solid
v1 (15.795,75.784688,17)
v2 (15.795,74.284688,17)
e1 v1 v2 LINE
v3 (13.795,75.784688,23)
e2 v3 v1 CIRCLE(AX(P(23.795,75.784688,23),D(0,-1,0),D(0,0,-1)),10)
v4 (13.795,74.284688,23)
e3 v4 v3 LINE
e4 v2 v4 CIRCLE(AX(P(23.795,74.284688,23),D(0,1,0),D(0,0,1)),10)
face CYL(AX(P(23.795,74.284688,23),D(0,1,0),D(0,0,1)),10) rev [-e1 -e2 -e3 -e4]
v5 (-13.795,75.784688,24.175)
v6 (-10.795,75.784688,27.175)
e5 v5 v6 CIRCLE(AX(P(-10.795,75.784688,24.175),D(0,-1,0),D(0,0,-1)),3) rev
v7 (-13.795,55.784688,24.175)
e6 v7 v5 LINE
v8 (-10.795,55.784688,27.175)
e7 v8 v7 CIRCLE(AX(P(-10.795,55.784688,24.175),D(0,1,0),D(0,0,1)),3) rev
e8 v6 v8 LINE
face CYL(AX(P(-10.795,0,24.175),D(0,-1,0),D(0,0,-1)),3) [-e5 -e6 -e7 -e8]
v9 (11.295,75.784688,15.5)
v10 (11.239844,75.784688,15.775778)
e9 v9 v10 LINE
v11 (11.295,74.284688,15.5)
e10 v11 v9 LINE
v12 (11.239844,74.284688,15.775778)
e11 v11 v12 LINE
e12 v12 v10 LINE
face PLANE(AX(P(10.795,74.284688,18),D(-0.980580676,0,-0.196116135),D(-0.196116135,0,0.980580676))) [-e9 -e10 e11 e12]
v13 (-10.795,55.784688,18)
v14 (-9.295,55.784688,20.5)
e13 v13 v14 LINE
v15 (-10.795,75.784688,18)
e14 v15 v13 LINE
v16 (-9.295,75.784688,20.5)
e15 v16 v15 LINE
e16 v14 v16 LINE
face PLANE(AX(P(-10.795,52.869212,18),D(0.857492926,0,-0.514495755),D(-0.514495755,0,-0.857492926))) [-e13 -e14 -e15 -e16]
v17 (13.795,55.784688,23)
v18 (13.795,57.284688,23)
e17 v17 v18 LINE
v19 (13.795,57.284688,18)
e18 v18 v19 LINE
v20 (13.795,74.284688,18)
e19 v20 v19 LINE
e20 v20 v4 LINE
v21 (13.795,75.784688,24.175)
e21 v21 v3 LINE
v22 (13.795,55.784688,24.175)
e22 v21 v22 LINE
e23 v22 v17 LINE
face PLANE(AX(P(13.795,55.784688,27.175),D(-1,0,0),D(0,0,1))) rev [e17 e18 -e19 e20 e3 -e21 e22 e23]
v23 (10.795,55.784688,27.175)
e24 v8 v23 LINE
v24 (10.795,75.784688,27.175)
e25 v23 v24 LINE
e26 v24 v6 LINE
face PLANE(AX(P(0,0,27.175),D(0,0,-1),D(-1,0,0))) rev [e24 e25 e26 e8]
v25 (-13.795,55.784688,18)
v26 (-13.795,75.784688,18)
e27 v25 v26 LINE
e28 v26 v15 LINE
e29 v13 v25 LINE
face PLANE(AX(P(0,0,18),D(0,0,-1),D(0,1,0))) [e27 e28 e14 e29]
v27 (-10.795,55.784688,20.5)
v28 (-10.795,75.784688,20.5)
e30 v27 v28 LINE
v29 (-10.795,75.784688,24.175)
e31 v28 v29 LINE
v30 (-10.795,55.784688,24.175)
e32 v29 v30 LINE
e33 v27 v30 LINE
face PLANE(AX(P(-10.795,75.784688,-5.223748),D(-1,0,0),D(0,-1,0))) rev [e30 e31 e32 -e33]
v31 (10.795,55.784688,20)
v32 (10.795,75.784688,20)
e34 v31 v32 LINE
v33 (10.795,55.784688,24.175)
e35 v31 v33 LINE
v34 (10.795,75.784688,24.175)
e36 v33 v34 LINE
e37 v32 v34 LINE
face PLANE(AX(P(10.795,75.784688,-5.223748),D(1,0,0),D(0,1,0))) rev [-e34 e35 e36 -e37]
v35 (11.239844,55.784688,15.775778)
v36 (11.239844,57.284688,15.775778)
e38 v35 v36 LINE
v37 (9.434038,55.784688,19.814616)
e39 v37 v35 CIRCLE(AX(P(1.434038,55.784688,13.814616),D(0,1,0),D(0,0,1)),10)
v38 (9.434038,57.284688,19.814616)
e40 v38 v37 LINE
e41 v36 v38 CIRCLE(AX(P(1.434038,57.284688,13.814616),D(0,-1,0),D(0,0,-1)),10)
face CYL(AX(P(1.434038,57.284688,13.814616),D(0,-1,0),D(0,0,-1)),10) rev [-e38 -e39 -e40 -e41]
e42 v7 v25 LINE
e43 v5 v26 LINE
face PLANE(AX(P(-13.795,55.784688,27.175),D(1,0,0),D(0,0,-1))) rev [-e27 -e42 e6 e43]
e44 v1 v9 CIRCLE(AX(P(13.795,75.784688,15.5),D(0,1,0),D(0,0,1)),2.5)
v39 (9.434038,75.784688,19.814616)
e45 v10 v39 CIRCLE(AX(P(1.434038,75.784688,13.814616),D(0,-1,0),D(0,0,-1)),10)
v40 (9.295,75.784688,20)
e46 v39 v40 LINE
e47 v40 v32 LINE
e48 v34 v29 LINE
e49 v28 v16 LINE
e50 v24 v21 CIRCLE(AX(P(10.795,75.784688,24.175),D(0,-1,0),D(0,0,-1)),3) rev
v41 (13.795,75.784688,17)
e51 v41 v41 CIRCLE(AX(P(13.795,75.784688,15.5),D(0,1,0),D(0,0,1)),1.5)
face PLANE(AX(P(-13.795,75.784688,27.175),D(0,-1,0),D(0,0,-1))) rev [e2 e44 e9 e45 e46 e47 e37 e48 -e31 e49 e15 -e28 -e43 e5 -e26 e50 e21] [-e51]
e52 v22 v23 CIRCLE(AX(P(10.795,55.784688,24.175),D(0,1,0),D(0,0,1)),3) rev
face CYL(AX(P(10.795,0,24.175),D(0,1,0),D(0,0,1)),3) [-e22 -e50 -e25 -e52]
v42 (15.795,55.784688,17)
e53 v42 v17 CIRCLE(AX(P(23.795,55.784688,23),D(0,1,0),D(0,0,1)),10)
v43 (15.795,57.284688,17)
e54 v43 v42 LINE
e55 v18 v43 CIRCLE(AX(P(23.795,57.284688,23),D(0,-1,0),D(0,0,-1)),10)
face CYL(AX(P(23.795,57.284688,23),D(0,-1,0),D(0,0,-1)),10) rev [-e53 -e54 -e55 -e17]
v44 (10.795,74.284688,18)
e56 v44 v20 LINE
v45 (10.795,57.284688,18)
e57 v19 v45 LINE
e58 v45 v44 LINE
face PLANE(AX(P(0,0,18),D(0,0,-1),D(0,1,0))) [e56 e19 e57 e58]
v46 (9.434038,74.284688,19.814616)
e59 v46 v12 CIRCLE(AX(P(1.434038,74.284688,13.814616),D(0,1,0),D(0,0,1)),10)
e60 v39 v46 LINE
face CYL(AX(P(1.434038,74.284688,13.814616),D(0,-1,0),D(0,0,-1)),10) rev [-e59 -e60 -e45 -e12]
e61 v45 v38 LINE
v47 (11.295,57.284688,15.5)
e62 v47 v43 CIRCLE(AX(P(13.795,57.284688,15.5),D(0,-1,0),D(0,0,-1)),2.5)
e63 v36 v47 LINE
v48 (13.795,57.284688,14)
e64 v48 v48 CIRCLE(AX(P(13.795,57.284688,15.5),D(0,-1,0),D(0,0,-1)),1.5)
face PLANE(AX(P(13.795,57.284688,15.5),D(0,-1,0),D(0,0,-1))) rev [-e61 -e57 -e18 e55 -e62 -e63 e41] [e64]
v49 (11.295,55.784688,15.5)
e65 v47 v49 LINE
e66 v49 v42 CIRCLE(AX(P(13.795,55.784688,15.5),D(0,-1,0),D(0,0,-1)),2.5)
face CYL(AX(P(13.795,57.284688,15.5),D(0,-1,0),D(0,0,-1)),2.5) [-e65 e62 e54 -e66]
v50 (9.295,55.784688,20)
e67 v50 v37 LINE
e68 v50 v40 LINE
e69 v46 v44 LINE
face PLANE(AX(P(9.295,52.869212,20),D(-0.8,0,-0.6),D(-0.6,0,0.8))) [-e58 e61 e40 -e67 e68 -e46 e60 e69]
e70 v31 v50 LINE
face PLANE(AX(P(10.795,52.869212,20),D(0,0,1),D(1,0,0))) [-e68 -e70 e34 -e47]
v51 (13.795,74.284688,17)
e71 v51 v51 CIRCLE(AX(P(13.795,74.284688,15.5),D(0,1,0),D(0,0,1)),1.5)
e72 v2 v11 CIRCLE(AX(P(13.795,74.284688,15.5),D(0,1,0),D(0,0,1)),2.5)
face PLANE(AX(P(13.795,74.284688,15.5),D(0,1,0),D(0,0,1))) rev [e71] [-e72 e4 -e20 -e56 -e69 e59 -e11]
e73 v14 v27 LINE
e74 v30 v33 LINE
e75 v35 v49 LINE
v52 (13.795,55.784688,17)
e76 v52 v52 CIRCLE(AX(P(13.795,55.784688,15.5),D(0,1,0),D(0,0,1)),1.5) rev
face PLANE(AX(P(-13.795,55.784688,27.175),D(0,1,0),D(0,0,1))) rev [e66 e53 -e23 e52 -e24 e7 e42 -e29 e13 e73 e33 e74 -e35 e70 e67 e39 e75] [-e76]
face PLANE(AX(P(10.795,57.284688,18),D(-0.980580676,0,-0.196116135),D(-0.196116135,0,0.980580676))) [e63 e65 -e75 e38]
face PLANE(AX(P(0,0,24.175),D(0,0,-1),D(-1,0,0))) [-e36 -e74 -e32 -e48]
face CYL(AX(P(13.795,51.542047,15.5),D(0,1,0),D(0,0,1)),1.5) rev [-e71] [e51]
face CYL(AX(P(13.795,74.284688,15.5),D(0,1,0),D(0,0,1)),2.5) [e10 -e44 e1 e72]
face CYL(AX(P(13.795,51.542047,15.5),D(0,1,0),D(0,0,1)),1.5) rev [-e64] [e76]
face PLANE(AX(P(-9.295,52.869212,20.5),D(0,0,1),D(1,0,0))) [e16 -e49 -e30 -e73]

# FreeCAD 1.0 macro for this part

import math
import FreeCAD as App
import Part
import Sketcher

V = App.Vector


def edges_at(feature, points):
    """Names of the edges that pass closest to the given points."""
    edges = feature.Shape.Edges
    near = lambda p: min(range(len(edges)), key=lambda i: edges[i].distToShape(Part.Vertex(*p))[0])
    return sorted({f"Edge{near(p) + 1}" for p in points})

doc = App.newDocument("Part")
body = doc.addObject("PartDesign::Body", "Body")

# Sketch on XY plane
sketch1 = body.newObject("Sketcher::SketchObject", "Sketch")
sketch1.AttachmentSupport = (doc.getObject("XY_Plane"), [""])
sketch1.MapMode = "FlatFace"
sketch1.AttachmentOffset = App.Placement(V(0, 0, 24.175), App.Rotation())
sketch1.addGeometry(Part.LineSegment(V(-14, 76, 0), V(-14, 56, 0)), False)
sketch1.addGeometry(Part.LineSegment(V(-14, 56, 0), V(14, 56, 0)), False)
sketch1.addGeometry(Part.LineSegment(V(14, 56, 0), V(14, 76, 0)), False)
sketch1.addGeometry(Part.LineSegment(V(14, 76, 0), V(-14, 76, 0)), False)
sketch1.addConstraint(Sketcher.Constraint("Coincident", 0, 2, 1, 1))
sketch1.addConstraint(Sketcher.Constraint("Coincident", 1, 2, 2, 1))
sketch1.addConstraint(Sketcher.Constraint("Coincident", 2, 2, 3, 1))
sketch1.addConstraint(Sketcher.Constraint("Coincident", 3, 2, 0, 1))
sketch1.addConstraint(Sketcher.Constraint("Vertical", 0))
sketch1.addConstraint(Sketcher.Constraint("Horizontal", 1))
sketch1.addConstraint(Sketcher.Constraint("Vertical", 2))
sketch1.addConstraint(Sketcher.Constraint("Horizontal", 3))
sketch1.addConstraint(Sketcher.Constraint("DistanceY", 0, 2, 0, 1, 20.0))
sketch1.addConstraint(Sketcher.Constraint("DistanceX", 1, 1, 1, 2, 27.59))
sketch1.addConstraint(Sketcher.Constraint("DistanceX", 0, 2, -1, 1, 13.795))
sketch1.addConstraint(Sketcher.Constraint("DistanceY", -1, 1, 0, 2, 55.784688))
pad1 = body.newObject("PartDesign::Pad", "Pad")
pad1.Profile = sketch1
pad1.Length = 3

# Sketch on XY plane
sketch2 = body.newObject("Sketcher::SketchObject", "Sketch001")
sketch2.AttachmentSupport = (doc.getObject("XY_Plane"), [""])
sketch2.MapMode = "FlatFace"
sketch2.AttachmentOffset = App.Placement(V(0, 0, 24.175), App.Rotation())
sketch2.addGeometry(Part.LineSegment(V(13.8, 75.8, 0), V(13.8, 55.8, 0)), False)
sketch2.addGeometry(Part.LineSegment(V(13.8, 55.8, 0), V(10.8, 55.8, 0)), False)
sketch2.addGeometry(Part.LineSegment(V(10.8, 55.8, 0), V(10.8, 75.8, 0)), False)
sketch2.addGeometry(Part.LineSegment(V(10.8, 75.8, 0), V(13.8, 75.8, 0)), False)
sketch2.addGeometry(Part.LineSegment(V(-10.8, 75.8, 0), V(-10.8, 55.8, 0)), False)
sketch2.addGeometry(Part.LineSegment(V(-10.8, 55.8, 0), V(-13.8, 55.8, 0)), False)
sketch2.addGeometry(Part.LineSegment(V(-13.8, 55.8, 0), V(-13.8, 75.8, 0)), False)
sketch2.addGeometry(Part.LineSegment(V(-13.8, 75.8, 0), V(-10.8, 75.8, 0)), False)
sketch2.addConstraint(Sketcher.Constraint("Coincident", 0, 2, 1, 1))
sketch2.addConstraint(Sketcher.Constraint("Coincident", 1, 2, 2, 1))
sketch2.addConstraint(Sketcher.Constraint("Coincident", 2, 2, 3, 1))
sketch2.addConstraint(Sketcher.Constraint("Coincident", 3, 2, 0, 1))
sketch2.addConstraint(Sketcher.Constraint("Coincident", 4, 2, 5, 1))
sketch2.addConstraint(Sketcher.Constraint("Coincident", 5, 2, 6, 1))
sketch2.addConstraint(Sketcher.Constraint("Coincident", 6, 2, 7, 1))
sketch2.addConstraint(Sketcher.Constraint("Coincident", 7, 2, 4, 1))
sketch2.addConstraint(Sketcher.Constraint("Vertical", 0))
sketch2.addConstraint(Sketcher.Constraint("Horizontal", 1))
sketch2.addConstraint(Sketcher.Constraint("Vertical", 2))
sketch2.addConstraint(Sketcher.Constraint("Horizontal", 3))
sketch2.addConstraint(Sketcher.Constraint("Vertical", 4))
sketch2.addConstraint(Sketcher.Constraint("Horizontal", 5))
sketch2.addConstraint(Sketcher.Constraint("Vertical", 6))
sketch2.addConstraint(Sketcher.Constraint("Horizontal", 7))
sketch2.addConstraint(Sketcher.Constraint("Symmetric", 1, 2, 4, 2, -2))
sketch2.addConstraint(Sketcher.Constraint("Symmetric", 3, 2, 6, 2, -2))
sketch2.addConstraint(Sketcher.Constraint("DistanceX", 1, 2, 1, 1, 3.0))
sketch2.addConstraint(Sketcher.Constraint("DistanceY", 0, 2, 0, 1, 20.0))
sketch2.addConstraint(Sketcher.Constraint("DistanceX", 4, 2, 1, 2, 21.59))
sketch2.addConstraint(Sketcher.Constraint("DistanceY", -1, 1, 0, 2, 55.784688))
pad2 = body.newObject("PartDesign::Pad", "Pad001")
pad2.Profile = sketch2
pad2.Length = 6.175
pad2.Reversed = True

# Sketch on XZ plane
sketch3 = body.newObject("Sketcher::SketchObject", "Sketch002")
sketch3.AttachmentSupport = (doc.getObject("XZ_Plane"), [""])
sketch3.MapMode = "FlatFace"
sketch3.AttachmentOffset = App.Placement(V(0, 0, -75.784688), App.Rotation())
sketch3.addGeometry(Part.LineSegment(V(-10.8, 18, 0), V(-10.8, 20.5, 0)), False)
sketch3.addGeometry(Part.LineSegment(V(-10.8, 20.5, 0), V(-9.3, 20.5, 0)), False)
sketch3.addGeometry(Part.LineSegment(V(-9.3, 20.5, 0), V(-10.8, 18, 0)), False)
sketch3.addGeometry(Part.LineSegment(V(10.8, 20, 0), V(10.8, 18, 0)), False)
sketch3.addGeometry(Part.LineSegment(V(10.8, 18, 0), V(9.3, 20, 0)), False)
sketch3.addGeometry(Part.LineSegment(V(9.3, 20, 0), V(10.8, 20, 0)), False)
sketch3.addConstraint(Sketcher.Constraint("Coincident", 0, 2, 1, 1))
sketch3.addConstraint(Sketcher.Constraint("Coincident", 1, 2, 2, 1))
sketch3.addConstraint(Sketcher.Constraint("Coincident", 2, 2, 0, 1))
sketch3.addConstraint(Sketcher.Constraint("Coincident", 3, 2, 4, 1))
sketch3.addConstraint(Sketcher.Constraint("Coincident", 4, 2, 5, 1))
sketch3.addConstraint(Sketcher.Constraint("Coincident", 5, 2, 3, 1))
sketch3.addConstraint(Sketcher.Constraint("Vertical", 0))
sketch3.addConstraint(Sketcher.Constraint("Horizontal", 1))
sketch3.addConstraint(Sketcher.Constraint("Vertical", 3))
sketch3.addConstraint(Sketcher.Constraint("Horizontal", 5))
sketch3.addConstraint(Sketcher.Constraint("Symmetric", 2, 2, 3, 2, -2))
sketch3.addConstraint(Sketcher.Constraint("Equal", 1, 5))
sketch3.addConstraint(Sketcher.Constraint("DistanceY", 3, 2, 3, 1, 2.0))
sketch3.addConstraint(Sketcher.Constraint("DistanceX", 1, 1, 1, 2, 1.5))
sketch3.addConstraint(Sketcher.Constraint("DistanceY", 0, 1, 0, 2, 2.5))
sketch3.addConstraint(Sketcher.Constraint("DistanceY", -1, 1, 2, 2, 18.0))
sketch3.addConstraint(Sketcher.Constraint("DistanceX", 1, 2, 3, 2, 20.09))
pad3 = body.newObject("PartDesign::Pad", "Pad002")
pad3.Profile = sketch3
pad3.Length = 20

# Sketch on XZ plane
sketch4 = body.newObject("Sketcher::SketchObject", "Sketch003")
sketch4.AttachmentSupport = (doc.getObject("XZ_Plane"), [""])
sketch4.MapMode = "FlatFace"
sketch4.AttachmentOffset = App.Placement(V(0, 0, -55.784688), App.Rotation())
sketch4.addGeometry(Part.LineSegment(V(10.8, 18, 0), V(11.3, 15.5, 0)), False)
sketch4.addGeometry(Part.ArcOfCircle(Part.Circle(V(13.8, 15.5, 0), V(0, 0, 1), 2.5), math.radians(180), math.radians(450)), False)
sketch4.addGeometry(Part.LineSegment(V(13.8, 18, 0), V(10.8, 18, 0)), False)
sketch4.addConstraint(Sketcher.Constraint("Coincident", 0, 2, 1, 1))
sketch4.addConstraint(Sketcher.Constraint("Tangent", 1, 2, 2, 1))
sketch4.addConstraint(Sketcher.Constraint("Coincident", 2, 2, 0, 1))
sketch4.addConstraint(Sketcher.Constraint("Horizontal", 2))
sketch4.addConstraint(Sketcher.Constraint("Horizontal", 1, 3, 0, 2))
sketch4.addConstraint(Sketcher.Constraint("Radius", 1, 2.5))
sketch4.addConstraint(Sketcher.Constraint("DistanceX", 2, 2, 2, 1, 3.0))
sketch4.addConstraint(Sketcher.Constraint("DistanceY", -1, 1, 1, 2, 18.0))
sketch4.addConstraint(Sketcher.Constraint("DistanceX", -1, 1, 1, 3, 13.795))
pad4 = body.newObject("PartDesign::Pad", "Pad003")
pad4.Profile = sketch4
pad4.Length = 1.5
pad4.Reversed = True

# Sketch on XZ plane
sketch5 = body.newObject("Sketcher::SketchObject", "Sketch004")
sketch5.AttachmentSupport = (doc.getObject("XZ_Plane"), [""])
sketch5.MapMode = "FlatFace"
sketch5.AttachmentOffset = App.Placement(V(0, 0, -74.284688), App.Rotation())
sketch5.addGeometry(Part.LineSegment(V(11.3, 15.5, 0), V(10.8, 18, 0)), False)
sketch5.addGeometry(Part.LineSegment(V(10.8, 18, 0), V(13.8, 18, 0)), False)
sketch5.addGeometry(Part.ArcOfCircle(Part.Circle(V(13.8, 15.5, 0), V(0, 0, 1), 2.5), math.radians(180), math.radians(450)), False)
sketch5.addConstraint(Sketcher.Constraint("Coincident", 0, 2, 1, 1))
sketch5.addConstraint(Sketcher.Constraint("Tangent", 1, 2, 2, 2))
sketch5.addConstraint(Sketcher.Constraint("Coincident", 2, 1, 0, 1))
sketch5.addConstraint(Sketcher.Constraint("Horizontal", 1))
sketch5.addConstraint(Sketcher.Constraint("Radius", 2, 2.5))
sketch5.addConstraint(Sketcher.Constraint("DistanceX", 1, 1, 1, 2, 3.0))
sketch5.addConstraint(Sketcher.Constraint("DistanceY", -1, 1, 0, 2, 18.0))
sketch5.addConstraint(Sketcher.Constraint("DistanceY", -1, 1, 2, 1, 15.5))
sketch5.addConstraint(Sketcher.Constraint("DistanceX", -1, 1, 2, 3, 13.795))
pad5 = body.newObject("PartDesign::Pad", "Pad004")
pad5.Profile = sketch5
pad5.Length = 1.5
pad5.Reversed = True

# Sketch on XZ plane
sketch6 = body.newObject("Sketcher::SketchObject", "Sketch005")
sketch6.AttachmentSupport = (doc.getObject("XZ_Plane"), [""])
sketch6.MapMode = "FlatFace"
sketch6.AttachmentOffset = App.Placement(V(0, 0, -55.784688), App.Rotation())
sketch6.addGeometry(Part.Circle(V(13.8, 15.5, 0), V(0, 0, 1), 1.5), False)
sketch6.addConstraint(Sketcher.Constraint("Diameter", 0, 3.0))
sketch6.addConstraint(Sketcher.Constraint("DistanceY", -1, 1, 0, 3, 15.5))
sketch6.addConstraint(Sketcher.Constraint("DistanceX", -1, 1, 0, 3, 13.795))
pocket1 = body.newObject("PartDesign::Pocket", "Pocket")
pocket1.Profile = sketch6
pocket1.Length = 20
doc.recompute()

fillet = body.newObject("PartDesign::Fillet", "Fillet")
fillet.Base = (pocket1, edges_at(pocket1, [(13.795, 75.035, 18), (13.795, 56.535, 18)]))
fillet.Radius = 10
doc.recompute()

fillet2 = body.newObject("PartDesign::Fillet", "Fillet001")
fillet2.Base = (fillet, edges_at(fillet, [(10.795, 56.535, 18), (10.795, 75.035, 18)]))
fillet2.Radius = 10
doc.recompute()

fillet3 = body.newObject("PartDesign::Fillet", "Fillet002")
fillet3.Base = (fillet2, edges_at(fillet2, [(13.795, 65.785, 27.175), (-13.795, 65.785, 27.175)]))
fillet3.Radius = 3

doc.recompute()
